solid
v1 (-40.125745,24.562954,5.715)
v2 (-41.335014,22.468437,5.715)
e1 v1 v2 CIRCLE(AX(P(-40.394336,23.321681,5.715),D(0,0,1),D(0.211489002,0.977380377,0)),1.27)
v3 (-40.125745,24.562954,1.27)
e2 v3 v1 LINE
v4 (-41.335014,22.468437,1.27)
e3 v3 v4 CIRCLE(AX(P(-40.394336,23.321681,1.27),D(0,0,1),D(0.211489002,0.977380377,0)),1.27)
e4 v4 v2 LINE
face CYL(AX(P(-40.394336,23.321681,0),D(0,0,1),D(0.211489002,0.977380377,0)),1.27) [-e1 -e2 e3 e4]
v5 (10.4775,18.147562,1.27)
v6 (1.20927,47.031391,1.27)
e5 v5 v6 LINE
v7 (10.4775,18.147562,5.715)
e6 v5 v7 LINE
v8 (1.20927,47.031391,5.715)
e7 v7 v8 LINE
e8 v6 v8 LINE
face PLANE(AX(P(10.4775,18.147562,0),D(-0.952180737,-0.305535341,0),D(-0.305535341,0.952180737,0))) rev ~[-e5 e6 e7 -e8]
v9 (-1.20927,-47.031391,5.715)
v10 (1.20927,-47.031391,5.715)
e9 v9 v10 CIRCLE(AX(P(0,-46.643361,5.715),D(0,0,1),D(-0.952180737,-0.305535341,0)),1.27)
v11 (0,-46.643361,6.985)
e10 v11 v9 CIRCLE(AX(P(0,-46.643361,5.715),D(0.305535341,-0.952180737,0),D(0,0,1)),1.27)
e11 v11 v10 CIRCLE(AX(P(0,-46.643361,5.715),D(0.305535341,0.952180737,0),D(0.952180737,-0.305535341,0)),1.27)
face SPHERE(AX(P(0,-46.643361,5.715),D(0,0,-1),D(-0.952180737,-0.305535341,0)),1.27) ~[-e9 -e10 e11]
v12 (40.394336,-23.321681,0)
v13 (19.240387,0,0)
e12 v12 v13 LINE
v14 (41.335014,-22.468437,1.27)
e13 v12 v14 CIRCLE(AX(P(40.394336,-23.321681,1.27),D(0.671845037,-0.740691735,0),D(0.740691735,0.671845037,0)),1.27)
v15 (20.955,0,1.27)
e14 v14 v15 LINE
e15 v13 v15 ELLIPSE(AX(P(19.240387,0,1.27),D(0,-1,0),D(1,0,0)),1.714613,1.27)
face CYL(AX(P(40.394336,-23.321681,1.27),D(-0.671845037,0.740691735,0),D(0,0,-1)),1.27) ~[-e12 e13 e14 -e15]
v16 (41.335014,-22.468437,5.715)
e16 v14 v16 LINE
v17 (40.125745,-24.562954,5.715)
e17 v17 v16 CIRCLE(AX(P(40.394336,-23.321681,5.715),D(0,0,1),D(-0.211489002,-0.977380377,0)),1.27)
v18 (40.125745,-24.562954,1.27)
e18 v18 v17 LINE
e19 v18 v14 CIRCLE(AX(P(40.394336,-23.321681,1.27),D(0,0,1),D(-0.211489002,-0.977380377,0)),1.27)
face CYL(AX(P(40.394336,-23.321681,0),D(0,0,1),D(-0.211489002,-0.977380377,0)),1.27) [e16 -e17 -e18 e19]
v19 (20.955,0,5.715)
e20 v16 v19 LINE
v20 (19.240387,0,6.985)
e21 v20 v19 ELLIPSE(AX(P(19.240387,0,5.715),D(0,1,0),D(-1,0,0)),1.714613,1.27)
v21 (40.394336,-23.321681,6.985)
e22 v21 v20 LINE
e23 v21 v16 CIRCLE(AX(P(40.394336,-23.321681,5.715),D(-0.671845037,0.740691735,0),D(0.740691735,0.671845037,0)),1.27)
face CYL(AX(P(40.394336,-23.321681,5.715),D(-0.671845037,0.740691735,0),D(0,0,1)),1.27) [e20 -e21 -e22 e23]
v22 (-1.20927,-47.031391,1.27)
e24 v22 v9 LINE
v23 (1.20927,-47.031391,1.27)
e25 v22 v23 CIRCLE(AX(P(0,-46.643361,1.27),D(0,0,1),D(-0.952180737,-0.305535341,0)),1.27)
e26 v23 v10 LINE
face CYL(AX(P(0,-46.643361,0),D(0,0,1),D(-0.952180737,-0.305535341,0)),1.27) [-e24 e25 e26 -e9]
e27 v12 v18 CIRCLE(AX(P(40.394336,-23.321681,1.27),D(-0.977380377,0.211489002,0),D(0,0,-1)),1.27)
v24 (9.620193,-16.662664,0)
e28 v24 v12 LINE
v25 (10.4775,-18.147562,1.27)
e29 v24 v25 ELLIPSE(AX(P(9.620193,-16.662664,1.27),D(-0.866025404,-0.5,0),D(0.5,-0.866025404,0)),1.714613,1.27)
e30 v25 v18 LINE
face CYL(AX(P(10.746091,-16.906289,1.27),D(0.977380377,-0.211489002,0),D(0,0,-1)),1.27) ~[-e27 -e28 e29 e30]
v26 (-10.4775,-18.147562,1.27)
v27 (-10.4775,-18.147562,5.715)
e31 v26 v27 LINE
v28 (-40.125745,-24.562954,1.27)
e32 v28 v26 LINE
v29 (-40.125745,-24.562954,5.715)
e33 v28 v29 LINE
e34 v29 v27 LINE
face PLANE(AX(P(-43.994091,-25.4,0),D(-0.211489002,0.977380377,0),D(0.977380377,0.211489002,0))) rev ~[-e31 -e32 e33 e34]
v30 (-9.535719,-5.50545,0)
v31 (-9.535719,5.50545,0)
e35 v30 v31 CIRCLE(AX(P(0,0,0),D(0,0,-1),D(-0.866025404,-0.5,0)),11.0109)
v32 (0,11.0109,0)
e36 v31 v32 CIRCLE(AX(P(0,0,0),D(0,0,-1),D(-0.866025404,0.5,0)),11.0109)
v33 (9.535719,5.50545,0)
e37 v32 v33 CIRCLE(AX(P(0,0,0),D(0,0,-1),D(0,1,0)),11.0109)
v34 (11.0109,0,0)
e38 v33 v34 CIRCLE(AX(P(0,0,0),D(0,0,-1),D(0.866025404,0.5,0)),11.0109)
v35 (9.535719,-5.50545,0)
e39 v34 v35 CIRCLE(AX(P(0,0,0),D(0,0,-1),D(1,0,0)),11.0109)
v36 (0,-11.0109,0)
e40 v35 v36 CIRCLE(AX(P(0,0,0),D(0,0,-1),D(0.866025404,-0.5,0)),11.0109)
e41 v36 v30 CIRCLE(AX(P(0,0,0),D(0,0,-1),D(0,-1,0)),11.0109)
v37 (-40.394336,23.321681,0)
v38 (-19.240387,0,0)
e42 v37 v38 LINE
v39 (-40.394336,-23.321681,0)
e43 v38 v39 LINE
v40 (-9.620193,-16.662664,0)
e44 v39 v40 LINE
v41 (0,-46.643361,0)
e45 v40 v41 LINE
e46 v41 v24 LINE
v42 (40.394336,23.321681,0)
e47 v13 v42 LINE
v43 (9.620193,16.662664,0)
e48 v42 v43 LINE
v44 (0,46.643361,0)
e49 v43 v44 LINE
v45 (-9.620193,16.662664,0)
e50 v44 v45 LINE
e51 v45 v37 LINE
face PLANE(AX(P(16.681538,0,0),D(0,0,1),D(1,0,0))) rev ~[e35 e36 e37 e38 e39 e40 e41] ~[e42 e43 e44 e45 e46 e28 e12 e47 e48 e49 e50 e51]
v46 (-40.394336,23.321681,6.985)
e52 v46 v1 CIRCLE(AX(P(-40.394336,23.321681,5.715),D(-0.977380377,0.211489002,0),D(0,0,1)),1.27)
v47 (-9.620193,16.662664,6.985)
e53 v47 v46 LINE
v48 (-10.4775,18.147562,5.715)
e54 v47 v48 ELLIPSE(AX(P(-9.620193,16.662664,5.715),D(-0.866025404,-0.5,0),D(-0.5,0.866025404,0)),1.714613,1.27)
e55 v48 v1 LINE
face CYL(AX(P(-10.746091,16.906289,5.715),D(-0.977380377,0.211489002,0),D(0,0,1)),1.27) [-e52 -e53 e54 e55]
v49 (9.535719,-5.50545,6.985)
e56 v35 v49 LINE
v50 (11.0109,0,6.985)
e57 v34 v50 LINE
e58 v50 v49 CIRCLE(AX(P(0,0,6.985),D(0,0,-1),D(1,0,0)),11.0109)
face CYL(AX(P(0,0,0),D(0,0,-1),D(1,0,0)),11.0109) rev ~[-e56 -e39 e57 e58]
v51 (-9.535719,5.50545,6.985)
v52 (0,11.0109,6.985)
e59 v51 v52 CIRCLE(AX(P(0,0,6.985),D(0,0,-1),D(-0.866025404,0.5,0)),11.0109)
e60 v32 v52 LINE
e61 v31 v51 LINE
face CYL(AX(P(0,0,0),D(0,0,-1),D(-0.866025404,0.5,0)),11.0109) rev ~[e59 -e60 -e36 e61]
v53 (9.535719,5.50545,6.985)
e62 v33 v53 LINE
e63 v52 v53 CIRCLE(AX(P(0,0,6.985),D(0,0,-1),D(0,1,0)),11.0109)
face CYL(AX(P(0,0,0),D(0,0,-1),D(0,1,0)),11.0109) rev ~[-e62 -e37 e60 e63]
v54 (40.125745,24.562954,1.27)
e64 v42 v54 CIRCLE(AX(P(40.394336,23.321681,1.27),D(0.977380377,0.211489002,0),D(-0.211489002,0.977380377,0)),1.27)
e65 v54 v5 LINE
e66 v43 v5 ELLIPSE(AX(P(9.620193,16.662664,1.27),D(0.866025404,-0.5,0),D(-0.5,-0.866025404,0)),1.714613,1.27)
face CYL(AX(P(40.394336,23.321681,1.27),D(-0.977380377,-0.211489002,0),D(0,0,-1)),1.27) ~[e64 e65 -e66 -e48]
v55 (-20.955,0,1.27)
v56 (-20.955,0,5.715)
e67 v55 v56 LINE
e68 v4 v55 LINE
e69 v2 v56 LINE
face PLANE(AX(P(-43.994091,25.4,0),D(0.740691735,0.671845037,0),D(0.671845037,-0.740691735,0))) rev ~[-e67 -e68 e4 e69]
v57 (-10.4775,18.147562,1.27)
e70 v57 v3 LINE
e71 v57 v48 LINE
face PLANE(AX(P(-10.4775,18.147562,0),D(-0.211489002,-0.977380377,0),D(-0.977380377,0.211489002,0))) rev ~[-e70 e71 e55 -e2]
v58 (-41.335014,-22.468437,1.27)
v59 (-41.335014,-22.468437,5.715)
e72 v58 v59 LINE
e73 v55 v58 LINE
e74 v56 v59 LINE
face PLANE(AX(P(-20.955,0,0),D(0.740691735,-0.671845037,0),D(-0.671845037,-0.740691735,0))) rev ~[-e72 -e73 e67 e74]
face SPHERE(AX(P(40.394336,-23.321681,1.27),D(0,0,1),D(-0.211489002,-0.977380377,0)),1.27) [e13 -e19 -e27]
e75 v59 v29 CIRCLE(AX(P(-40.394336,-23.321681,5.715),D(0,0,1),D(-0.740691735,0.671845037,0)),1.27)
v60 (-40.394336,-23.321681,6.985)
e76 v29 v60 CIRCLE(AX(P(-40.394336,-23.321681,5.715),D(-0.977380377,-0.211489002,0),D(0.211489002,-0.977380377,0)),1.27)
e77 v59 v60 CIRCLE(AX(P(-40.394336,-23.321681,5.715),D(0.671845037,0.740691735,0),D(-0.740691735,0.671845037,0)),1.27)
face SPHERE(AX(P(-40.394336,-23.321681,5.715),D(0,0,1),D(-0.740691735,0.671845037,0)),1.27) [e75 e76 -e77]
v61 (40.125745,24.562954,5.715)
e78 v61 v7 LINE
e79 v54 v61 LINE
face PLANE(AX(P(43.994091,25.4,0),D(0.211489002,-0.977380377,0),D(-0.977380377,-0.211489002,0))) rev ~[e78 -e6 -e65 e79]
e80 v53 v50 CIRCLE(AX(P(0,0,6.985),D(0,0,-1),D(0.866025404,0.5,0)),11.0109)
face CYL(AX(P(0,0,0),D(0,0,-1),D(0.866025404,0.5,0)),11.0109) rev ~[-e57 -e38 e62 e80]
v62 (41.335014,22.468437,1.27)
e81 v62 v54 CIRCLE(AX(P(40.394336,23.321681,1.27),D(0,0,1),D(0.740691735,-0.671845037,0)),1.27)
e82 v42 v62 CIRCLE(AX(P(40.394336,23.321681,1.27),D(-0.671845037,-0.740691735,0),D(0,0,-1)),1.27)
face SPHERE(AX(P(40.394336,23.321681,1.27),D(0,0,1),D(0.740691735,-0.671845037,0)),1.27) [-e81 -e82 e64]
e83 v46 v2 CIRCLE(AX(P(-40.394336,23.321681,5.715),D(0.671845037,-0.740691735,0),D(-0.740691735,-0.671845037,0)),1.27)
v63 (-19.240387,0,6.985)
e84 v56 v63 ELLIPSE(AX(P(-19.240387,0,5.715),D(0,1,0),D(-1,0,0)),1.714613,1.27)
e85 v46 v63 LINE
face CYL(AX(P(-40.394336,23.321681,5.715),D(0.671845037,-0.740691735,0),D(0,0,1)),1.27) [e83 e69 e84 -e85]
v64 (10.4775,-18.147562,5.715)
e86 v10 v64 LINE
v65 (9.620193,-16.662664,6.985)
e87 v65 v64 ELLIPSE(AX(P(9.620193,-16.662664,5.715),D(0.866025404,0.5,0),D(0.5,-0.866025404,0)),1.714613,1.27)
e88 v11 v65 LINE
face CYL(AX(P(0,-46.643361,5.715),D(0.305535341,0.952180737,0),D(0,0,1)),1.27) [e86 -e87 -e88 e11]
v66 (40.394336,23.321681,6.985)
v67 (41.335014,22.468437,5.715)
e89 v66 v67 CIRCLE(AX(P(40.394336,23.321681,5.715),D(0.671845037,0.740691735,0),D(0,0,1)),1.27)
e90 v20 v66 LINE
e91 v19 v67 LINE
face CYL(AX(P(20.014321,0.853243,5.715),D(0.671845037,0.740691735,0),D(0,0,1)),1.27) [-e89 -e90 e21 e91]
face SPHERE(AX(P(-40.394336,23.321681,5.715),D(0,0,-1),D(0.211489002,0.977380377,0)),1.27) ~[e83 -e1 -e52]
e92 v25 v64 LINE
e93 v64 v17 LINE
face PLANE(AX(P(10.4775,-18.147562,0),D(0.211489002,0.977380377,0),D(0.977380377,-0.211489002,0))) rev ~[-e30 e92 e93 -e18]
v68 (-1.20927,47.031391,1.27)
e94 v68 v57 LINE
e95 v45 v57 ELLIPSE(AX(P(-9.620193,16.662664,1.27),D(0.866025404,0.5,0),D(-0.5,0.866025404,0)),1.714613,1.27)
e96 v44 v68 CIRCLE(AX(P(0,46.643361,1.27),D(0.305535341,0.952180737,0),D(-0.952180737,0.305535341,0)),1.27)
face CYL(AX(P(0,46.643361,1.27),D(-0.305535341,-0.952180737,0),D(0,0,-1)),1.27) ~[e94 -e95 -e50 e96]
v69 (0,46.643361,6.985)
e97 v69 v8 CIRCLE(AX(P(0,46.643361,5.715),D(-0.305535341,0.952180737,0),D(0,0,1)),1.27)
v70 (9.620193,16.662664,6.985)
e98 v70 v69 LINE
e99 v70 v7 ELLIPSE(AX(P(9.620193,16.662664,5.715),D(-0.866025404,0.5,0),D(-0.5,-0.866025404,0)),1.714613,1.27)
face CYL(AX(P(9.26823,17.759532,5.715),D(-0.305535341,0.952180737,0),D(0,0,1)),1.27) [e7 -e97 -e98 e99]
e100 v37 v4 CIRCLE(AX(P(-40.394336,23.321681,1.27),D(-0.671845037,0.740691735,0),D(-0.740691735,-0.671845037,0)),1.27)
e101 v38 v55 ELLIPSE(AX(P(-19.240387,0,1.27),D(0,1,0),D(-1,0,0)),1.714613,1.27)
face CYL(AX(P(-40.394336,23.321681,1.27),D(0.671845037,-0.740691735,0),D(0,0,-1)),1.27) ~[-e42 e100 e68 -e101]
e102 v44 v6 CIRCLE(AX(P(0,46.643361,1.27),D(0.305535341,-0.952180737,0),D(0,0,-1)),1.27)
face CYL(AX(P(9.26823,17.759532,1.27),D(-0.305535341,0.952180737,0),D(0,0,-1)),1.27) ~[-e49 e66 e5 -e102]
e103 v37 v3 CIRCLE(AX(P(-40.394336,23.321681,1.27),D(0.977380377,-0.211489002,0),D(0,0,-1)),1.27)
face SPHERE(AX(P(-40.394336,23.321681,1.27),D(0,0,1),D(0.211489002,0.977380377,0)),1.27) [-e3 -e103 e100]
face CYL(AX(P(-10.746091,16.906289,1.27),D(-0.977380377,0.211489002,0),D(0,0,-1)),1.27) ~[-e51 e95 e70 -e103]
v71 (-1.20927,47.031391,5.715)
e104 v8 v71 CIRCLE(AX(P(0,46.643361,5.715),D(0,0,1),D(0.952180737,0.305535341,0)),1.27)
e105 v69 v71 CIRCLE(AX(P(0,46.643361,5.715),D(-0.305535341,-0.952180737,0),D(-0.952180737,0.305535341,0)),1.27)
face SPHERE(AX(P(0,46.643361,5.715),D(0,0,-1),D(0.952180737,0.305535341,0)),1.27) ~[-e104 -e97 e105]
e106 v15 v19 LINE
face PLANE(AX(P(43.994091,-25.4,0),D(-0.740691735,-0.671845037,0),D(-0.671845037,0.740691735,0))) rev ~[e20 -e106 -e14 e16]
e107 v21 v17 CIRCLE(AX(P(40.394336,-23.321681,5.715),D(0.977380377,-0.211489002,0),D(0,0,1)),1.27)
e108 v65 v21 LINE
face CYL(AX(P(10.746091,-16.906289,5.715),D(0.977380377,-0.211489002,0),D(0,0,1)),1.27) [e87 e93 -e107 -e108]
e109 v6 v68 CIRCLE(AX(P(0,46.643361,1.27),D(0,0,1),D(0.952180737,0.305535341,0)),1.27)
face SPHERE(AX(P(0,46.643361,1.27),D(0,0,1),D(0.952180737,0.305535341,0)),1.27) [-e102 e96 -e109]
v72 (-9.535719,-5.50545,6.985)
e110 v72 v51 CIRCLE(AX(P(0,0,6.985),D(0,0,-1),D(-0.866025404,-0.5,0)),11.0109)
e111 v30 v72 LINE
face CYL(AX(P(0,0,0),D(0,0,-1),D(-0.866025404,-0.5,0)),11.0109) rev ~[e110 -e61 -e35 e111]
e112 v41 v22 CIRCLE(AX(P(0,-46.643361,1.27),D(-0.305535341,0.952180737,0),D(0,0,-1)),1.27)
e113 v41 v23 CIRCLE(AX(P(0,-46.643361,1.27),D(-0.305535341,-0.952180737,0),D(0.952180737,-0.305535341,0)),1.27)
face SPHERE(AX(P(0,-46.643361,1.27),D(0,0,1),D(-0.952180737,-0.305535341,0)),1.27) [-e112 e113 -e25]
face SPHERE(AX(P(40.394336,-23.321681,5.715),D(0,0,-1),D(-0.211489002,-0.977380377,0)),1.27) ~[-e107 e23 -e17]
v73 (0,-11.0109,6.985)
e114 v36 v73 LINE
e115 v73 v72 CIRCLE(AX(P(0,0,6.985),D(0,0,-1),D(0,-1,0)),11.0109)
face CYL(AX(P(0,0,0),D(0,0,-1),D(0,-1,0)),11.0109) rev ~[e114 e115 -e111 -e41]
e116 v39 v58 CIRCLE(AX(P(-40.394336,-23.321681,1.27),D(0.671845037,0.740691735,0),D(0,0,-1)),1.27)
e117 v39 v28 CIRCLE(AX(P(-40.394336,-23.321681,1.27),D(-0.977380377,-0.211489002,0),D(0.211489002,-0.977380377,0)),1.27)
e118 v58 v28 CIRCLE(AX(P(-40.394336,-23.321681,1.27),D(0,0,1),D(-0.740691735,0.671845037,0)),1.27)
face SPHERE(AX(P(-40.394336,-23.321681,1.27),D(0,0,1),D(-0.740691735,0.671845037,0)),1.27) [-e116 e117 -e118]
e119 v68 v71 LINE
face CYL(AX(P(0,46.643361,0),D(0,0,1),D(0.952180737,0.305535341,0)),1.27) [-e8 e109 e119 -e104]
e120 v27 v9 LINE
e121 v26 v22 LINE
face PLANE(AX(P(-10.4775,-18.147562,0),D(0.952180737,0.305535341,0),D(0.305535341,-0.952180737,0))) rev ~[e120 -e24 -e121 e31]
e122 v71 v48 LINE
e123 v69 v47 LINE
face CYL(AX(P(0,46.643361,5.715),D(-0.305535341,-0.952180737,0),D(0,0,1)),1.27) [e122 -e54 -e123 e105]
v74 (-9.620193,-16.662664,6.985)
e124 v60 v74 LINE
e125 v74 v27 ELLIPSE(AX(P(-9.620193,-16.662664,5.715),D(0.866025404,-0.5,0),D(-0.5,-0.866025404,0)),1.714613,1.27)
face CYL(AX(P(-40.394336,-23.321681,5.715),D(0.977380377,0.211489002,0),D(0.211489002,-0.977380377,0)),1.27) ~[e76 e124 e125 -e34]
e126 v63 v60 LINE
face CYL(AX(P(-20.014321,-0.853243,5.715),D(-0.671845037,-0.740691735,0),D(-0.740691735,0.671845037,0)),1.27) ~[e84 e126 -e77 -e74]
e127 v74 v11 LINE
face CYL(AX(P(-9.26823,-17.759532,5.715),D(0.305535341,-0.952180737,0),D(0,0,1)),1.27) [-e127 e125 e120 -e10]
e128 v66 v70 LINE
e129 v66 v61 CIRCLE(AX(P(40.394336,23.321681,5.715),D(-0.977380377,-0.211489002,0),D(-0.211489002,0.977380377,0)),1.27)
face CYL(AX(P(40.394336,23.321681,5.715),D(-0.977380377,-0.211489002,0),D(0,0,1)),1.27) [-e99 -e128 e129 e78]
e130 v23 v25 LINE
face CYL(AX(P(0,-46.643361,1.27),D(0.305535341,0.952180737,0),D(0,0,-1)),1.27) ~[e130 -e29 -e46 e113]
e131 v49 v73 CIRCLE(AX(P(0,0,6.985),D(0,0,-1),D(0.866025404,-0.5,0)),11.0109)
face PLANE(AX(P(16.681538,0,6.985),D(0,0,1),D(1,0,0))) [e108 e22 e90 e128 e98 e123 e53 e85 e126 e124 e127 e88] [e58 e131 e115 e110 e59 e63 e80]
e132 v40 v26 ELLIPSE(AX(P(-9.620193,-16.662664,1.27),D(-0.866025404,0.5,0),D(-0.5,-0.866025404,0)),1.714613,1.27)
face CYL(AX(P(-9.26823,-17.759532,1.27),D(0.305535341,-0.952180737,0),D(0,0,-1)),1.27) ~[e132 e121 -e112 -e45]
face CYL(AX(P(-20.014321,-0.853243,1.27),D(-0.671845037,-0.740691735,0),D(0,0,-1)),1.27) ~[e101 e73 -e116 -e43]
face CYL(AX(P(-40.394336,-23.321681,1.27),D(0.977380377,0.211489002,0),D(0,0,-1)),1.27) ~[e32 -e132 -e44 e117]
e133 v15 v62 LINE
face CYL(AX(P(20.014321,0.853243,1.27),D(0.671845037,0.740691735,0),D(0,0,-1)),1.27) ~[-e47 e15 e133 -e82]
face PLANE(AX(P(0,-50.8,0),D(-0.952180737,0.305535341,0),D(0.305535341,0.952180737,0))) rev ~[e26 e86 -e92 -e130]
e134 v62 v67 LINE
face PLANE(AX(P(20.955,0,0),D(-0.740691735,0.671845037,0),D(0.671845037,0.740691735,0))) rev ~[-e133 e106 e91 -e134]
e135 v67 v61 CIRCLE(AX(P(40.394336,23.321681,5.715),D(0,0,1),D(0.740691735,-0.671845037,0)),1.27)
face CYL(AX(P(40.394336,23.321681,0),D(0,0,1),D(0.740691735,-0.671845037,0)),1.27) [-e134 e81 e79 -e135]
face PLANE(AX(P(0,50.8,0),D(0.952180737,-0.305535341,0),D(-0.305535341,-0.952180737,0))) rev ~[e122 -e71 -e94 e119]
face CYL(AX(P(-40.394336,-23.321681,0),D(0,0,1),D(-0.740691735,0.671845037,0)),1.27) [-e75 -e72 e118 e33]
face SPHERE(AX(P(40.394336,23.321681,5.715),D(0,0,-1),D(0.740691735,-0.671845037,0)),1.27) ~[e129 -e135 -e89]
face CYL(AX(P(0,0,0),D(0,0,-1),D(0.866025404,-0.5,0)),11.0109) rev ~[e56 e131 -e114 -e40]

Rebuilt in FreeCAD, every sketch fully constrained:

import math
import FreeCAD as App
import Part
import Sketcher
Q = App.Units.Quantity


def edges_at(feature, points):
    """Names of the edges that pass closest to the given points."""
    edges = feature.Shape.Edges
    near = lambda p: min(range(len(edges)), key=lambda i: edges[i].distToShape(Part.Vertex(*p))[0])
    return sorted({f"Edge{near(p) + 1}" for p in points})


def add_polygon(sketch, points):
    """Adds a closed chain of lines whose ends are joined by coincident constraints."""
    first, n = sketch.GeometryCount, len(points)
    for a, b in zip(points, points[1:] + points[:1]):
        sketch.addGeometry(Part.LineSegment(App.Vector(*a, 0), App.Vector(*b, 0)), False)
    for i in range(n):
        sketch.addConstraint(Sketcher.Constraint("Coincident", first + i, 2, first + (i + 1) % n, 1))

doc = App.newDocument("Part")
body = doc.addObject("PartDesign::Body", "Body")

# Sketch on XY plane
sketch1 = doc.addObject("Sketcher::SketchObject", "Sketch")
body.addObject(sketch1)
sketch1.AttachmentSupport = (doc.XY_Plane, [""])
sketch1.MapMode = "FlatFace"
add_polygon(sketch1, [(-10.4775, -18.147562), (0, -50.8), (10.4775, -18.147562), (43.994091, -25.4), (20.955, 0), (43.994091, 25.4), (10.4775, 18.147562), (0, 50.8), (-10.4775, 18.147562), (-43.994091, 25.4), (-20.955, 0), (-43.994091, -25.4)])  # lines 0-11
sketch1.addGeometry(Part.ArcOfCircle(Part.Circle(App.Vector(0, 0, 0), App.Vector(0, 0, 1), 11.0109), math.radians(90), math.radians(150)), False)  # 12
sketch1.addGeometry(Part.ArcOfCircle(Part.Circle(App.Vector(0, 0, 0), App.Vector(0, 0, 1), 11.0109), math.radians(30), math.radians(90)), False)  # 13
sketch1.addGeometry(Part.ArcOfCircle(Part.Circle(App.Vector(0, 0, 0), App.Vector(0, 0, 1), 11.0109), math.radians(0), math.radians(30)), False)  # 14
sketch1.addGeometry(Part.ArcOfCircle(Part.Circle(App.Vector(0, 0, 0), App.Vector(0, 0, 1), 11.0109), math.radians(-30), math.radians(0)), False)  # 15
sketch1.addGeometry(Part.ArcOfCircle(Part.Circle(App.Vector(0, 0, 0), App.Vector(0, 0, 1), 11.0109), math.radians(-90), math.radians(-30)), False)  # 16
sketch1.addGeometry(Part.ArcOfCircle(Part.Circle(App.Vector(0, 0, 0), App.Vector(0, 0, 1), 11.0109), math.radians(-150), math.radians(-90)), False)  # 17
sketch1.addGeometry(Part.ArcOfCircle(Part.Circle(App.Vector(0, 0, 0), App.Vector(0, 0, 1), 11.0109), math.radians(150), math.radians(210)), False)  # 18
sketch1.addConstraint([
    Sketcher.Constraint("Tangent", 12, 1, 13, 2),
    Sketcher.Constraint("Tangent", 13, 1, 14, 2),
    Sketcher.Constraint("Tangent", 14, 1, 15, 2),
    Sketcher.Constraint("Tangent", 15, 1, 16, 2),
    Sketcher.Constraint("Tangent", 16, 1, 17, 2),
    Sketcher.Constraint("Tangent", 17, 1, 18, 2),
    Sketcher.Constraint("Tangent", 18, 1, 12, 2),
    Sketcher.Constraint("Coincident", 12, 3, -1, 1),
    Sketcher.Constraint("Coincident", 14, 3, -1, 1),
    Sketcher.Constraint("Coincident", 16, 3, -1, 1),
    Sketcher.Constraint("Symmetric", 0, 2, 6, 2, -1, 1),
    Sketcher.Constraint("Symmetric", 1, 2, 7, 2, -1, 1),
    Sketcher.Constraint("Symmetric", 2, 2, 8, 2, -1, 1),
    Sketcher.Constraint("Symmetric", 3, 2, 9, 2, -1, 1),
    Sketcher.Constraint("Symmetric", 4, 2, 10, 2, -1, 1),
    Sketcher.Constraint("Symmetric", 5, 2, 11, 2, -1, 1),
    Sketcher.Constraint("Symmetric", 5, 2, 7, 2, -2),
    Sketcher.Constraint("Symmetric", 4, 2, 8, 2, -2),
    Sketcher.Constraint("PointOnObject", 0, 2, -2),
    Sketcher.Constraint("PointOnObject", 3, 2, -1),
    Sketcher.Constraint("PointOnObject", 12, 1, -2),
    Sketcher.Constraint("PointOnObject", 14, 1, -1),
    Sketcher.Constraint("PointOnObject", 16, 1, -2),
    Sketcher.Constraint("Horizontal", 15, 1, 17, 1),
    Sketcher.Constraint("Horizontal", 13, 1, 18, 1),
    Sketcher.Constraint("Vertical", 13, 1, 15, 1),
    Sketcher.Constraint("Equal", 1, 2),
    Sketcher.Constraint("Equal", 2, 3),
    Sketcher.Constraint("DistanceY", 0, 2, -1, 1, Q("2 in")),
    Sketcher.Constraint("DistanceY", 2, 2, -1, 1, Q("1 in")),
    Sketcher.Constraint("Radius", 12, Q("0.4335 in")),
    Sketcher.Constraint("DistanceX", -1, 1, 3, 2, Q("0.825 in")),
    Sketcher.Constraint("DistanceX", -1, 1, 1, 2, Q("0.4125 in")),
    Sketcher.Constraint("DistanceY", 17, 1, 18, 1, Q("0.4335 in")),
])
pad1 = doc.addObject("PartDesign::Pad", "Pad")
body.addObject(pad1)
pad1.Profile = sketch1
pad1.Length = Q("0.275 in")
doc.recompute()

fillet = doc.addObject("PartDesign::Fillet", "Fillet")
body.addObject(fillet)
fillet.Base = (pad1, edges_at(pad1, [
    (0, 50.8, 3.493),
    (-43.994, -25.4, 3.493),
    (-43.994, 25.4, 3.493),
    (0, -50.8, 3.493),
    (43.994, -25.4, 3.493),
    (43.994, 25.4, 3.493),
]))
fillet.Radius = Q("0.05 in")
doc.recompute()

fillet2 = doc.addObject("PartDesign::Fillet", "Fillet001")
body.addObject(fillet2)
fillet2.Base = (fillet, edges_at(fillet, [
    (31.145, -11.234, 6.985),
    (5.843, -32.589, 6.985),
    (-25.302, -21.355, 6.985),
    (-31.145, 11.234, 6.985),
    (25.302, 21.355, 6.985),
    (-5.843, 32.589, 6.985),
    (25.302, 21.355, 0),
    (25.302, -21.355, 0),
    (5.843, -32.589, 0),
    (-25.302, -21.355, 0),
    (-31.145, 11.234, 0),
    (5.843, 32.589, 0),
]))
fillet2.Radius = Q("0.05 in")

doc.recompute()
